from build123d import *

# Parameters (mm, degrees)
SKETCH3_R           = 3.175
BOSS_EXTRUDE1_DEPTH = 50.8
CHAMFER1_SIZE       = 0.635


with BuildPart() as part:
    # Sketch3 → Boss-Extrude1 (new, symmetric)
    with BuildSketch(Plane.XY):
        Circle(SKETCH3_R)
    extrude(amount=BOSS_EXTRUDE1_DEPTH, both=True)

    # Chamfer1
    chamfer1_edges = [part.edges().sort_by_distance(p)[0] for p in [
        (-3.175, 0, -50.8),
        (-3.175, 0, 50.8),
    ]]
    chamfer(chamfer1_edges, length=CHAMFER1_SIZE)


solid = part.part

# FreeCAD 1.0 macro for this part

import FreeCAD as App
import Part
import Sketcher

V = App.Vector
Q = App.Units.Quantity


def edges_at(feature, points):
    """Names of the edges that pass closest to the given points."""
    edges = feature.Shape.Edges
    near = lambda p: min(range(len(edges)), key=lambda i: edges[i].distToShape(Part.Vertex(*p))[0])
    return sorted({f"Edge{near(p) + 1}" for p in points})

doc = App.newDocument("Part")
body = doc.addObject("PartDesign::Body", "Body")

# Sketch on XY plane
sketch1 = doc.addObject("Sketcher::SketchObject", "Sketch")
body.addObject(sketch1)
sketch1.AttachmentSupport = (doc.XY_Plane, [""])
sketch1.MapMode = "FlatFace"
sketch1.addGeometry(Part.Circle(V(0, 0, 0), V(0, 0, 1), 3.2), False)
sketch1.addConstraint([
    Sketcher.Constraint("Coincident", 0, 3, -1, 1),
    Sketcher.Constraint("Diameter", 0, Q("0.25 in")),
])
pad1 = doc.addObject("PartDesign::Pad", "Pad")
body.addObject(pad1)
pad1.Profile = sketch1
pad1.Length = Q("4 in")
pad1.Midplane = True
doc.recompute()

chamfer = doc.addObject("PartDesign::Chamfer", "Chamfer")
body.addObject(chamfer)
chamfer.Base = (pad1, edges_at(pad1, [(-3.175, 0, -50.8), (-3.175, 0, 50.8)]))
chamfer.Size = Q("0.025 in")

doc.recompute()
